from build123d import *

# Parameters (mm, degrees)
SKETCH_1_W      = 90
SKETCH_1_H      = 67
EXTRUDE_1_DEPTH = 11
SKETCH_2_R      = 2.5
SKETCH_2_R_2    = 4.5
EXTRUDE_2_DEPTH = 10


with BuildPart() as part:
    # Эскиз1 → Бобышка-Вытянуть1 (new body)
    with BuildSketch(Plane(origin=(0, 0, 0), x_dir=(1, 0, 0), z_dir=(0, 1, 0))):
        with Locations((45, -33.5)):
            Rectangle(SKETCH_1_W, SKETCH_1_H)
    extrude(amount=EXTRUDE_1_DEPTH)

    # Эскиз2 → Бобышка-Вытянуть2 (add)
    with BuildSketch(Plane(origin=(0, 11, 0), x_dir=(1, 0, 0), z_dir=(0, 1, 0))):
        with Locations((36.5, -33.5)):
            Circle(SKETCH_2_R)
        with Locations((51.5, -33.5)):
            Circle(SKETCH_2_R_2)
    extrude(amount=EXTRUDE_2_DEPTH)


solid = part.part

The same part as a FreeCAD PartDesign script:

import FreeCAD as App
import Part
import Sketcher
from FreeCAD import Vector

doc = App.newDocument("Part")
params = doc.addObject("Spreadsheet::Sheet", "Params")
for row, (alias, value) in enumerate([
    ("sketch1_width", "90 mm"),
    ("sketch1_height", "67 mm"),
    ("pad1_length", "11 mm"),
    ("sketch2_diameter", "5 mm"),
    ("sketch2_diameter2", "9 mm"),
    ("pad2_length", "10 mm"),
], start=1):
    params.set(f"A{row}", alias)
    params.set(f"B{row}", "=" + value)
    params.setAlias(f"B{row}", alias)

body = doc.addObject("PartDesign::Body", "Body")

# Sketch on XZ plane
sketch1 = body.newObject("Sketcher::SketchObject", "Sketch")
sketch1.AttachmentSupport = (doc.getObject("XZ_Plane"), [""])
sketch1.MapMode = "FlatFace"
sketch1.addGeometry([
    Part.LineSegment(Vector(0, 0, 0), Vector(0, 67, 0)),
    Part.LineSegment(Vector(0, 67, 0), Vector(90, 67, 0)),
    Part.LineSegment(Vector(90, 67, 0), Vector(90, 0, 0)),
    Part.LineSegment(Vector(90, 0, 0), Vector(0, 0, 0)),
], False)
sketch1.addConstraint([
    Sketcher.Constraint("Coincident", 0, 2, 1, 1),
    Sketcher.Constraint("Coincident", 1, 2, 2, 1),
    Sketcher.Constraint("Coincident", 2, 2, 3, 1),
    Sketcher.Constraint("Coincident", 3, 2, 0, 1),
    Sketcher.Constraint("Vertical", 0),
    Sketcher.Constraint("Horizontal", 1),
    Sketcher.Constraint("Vertical", 2),
    Sketcher.Constraint("Horizontal", 3),
    Sketcher.Constraint("Coincident", 3, 2, -1, 1),
    Sketcher.Constraint("DistanceX", 1, 1, 1, 2, 90.0),
    Sketcher.Constraint("DistanceY", 0, 1, 0, 2, 67.0),
])
sketch1.setExpression("Constraints[9]", "Params.sketch1_width")
sketch1.setExpression("Constraints[10]", "Params.sketch1_height")
pad1 = body.newObject("PartDesign::Pad", "Pad")
pad1.Profile = sketch1
pad1.setExpression("Length", "Params.pad1_length")
pad1.Reversed = True

# Sketch on XZ plane
sketch2 = body.newObject("Sketcher::SketchObject", "Sketch001")
sketch2.AttachmentSupport = (doc.getObject("XZ_Plane"), [""])
sketch2.MapMode = "FlatFace"
sketch2.AttachmentOffset = App.Placement(Vector(0, 0, -11), App.Rotation())
sketch2.addGeometry([
    Part.Circle(Vector(36.5, 33.5, 0), Vector(0, 0, 1), 2.5),
    Part.Circle(Vector(51.5, 33.5, 0), Vector(0, 0, 1), 4.5),
], False)
sketch2.addConstraint([
    Sketcher.Constraint("Horizontal", 0, 3, 1, 3),
    Sketcher.Constraint("Diameter", 0, 5.0),
    Sketcher.Constraint("Diameter", 1, 9.0),
    Sketcher.Constraint("DistanceX", 0, 3, 1, 3, 15.0),
    Sketcher.Constraint("DistanceX", -1, 1, 0, 3, 36.5),
    Sketcher.Constraint("DistanceY", -1, 1, 0, 3, 33.5),
])
sketch2.setExpression("Constraints[1]", "Params.sketch2_diameter")
sketch2.setExpression("Constraints[2]", "Params.sketch2_diameter2")
pad2 = body.newObject("PartDesign::Pad", "Pad001")
pad2.Profile = sketch2
pad2.setExpression("Length", "Params.pad2_length")
pad2.Reversed = True

doc.recompute()
